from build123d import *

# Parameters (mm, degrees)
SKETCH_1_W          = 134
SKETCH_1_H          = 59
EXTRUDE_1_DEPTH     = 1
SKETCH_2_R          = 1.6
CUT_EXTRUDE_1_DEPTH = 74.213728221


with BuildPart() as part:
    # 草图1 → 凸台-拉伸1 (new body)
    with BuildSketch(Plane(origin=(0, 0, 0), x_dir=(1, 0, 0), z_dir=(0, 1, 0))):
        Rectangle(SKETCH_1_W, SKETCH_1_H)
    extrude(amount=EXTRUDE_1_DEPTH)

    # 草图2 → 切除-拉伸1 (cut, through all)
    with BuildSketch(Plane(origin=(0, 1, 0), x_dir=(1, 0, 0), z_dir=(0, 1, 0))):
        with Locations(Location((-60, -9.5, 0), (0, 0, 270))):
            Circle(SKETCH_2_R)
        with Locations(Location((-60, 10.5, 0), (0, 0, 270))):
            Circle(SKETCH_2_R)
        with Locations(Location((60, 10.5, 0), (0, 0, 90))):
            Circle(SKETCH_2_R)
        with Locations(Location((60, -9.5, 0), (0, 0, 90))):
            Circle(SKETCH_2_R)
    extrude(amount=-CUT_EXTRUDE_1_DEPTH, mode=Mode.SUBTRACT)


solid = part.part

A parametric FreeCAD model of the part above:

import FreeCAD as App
import Part
import Sketcher
Q = App.Units.Quantity


def add_polygon(sketch, points):
    """Adds a closed chain of lines whose ends are joined by coincident constraints."""
    first, n = sketch.GeometryCount, len(points)
    for a, b in zip(points, points[1:] + points[:1]):
        sketch.addGeometry(Part.LineSegment(App.Vector(*a, 0), App.Vector(*b, 0)), False)
    for i in range(n):
        sketch.addConstraint(Sketcher.Constraint("Coincident", first + i, 2, first + (i + 1) % n, 1))

doc = App.newDocument("Part")
body = doc.addObject("PartDesign::Body", "Body")

sketch1 = body.newObject("Sketcher::SketchObject", "Sketch")
sketch1.AttachmentSupport = (doc.getObject("XZ_Plane"), [""])
sketch1.MapMode = "FlatFace"
add_polygon(sketch1, [(-67, -29.5), (-67, 29.5), (67, 29.5), (67, -29.5)])
sketch1.addConstraint([
    Sketcher.Constraint("Vertical", 0),
    Sketcher.Constraint("Horizontal", 1),
    Sketcher.Constraint("Vertical", 2),
    Sketcher.Constraint("Horizontal", 3),
    Sketcher.Constraint("Symmetric", 0, 2, 2, 2, -1, 1),
    Sketcher.Constraint("DistanceX", 1, 1, 1, 2, Q("134 mm")),
    Sketcher.Constraint("DistanceY", 0, 1, 0, 2, Q("59 mm")),
])
pad1 = body.newObject("PartDesign::Pad", "Pad")
pad1.Profile = sketch1
pad1.Length = 1
pad1.Reversed = True

sketch2 = body.newObject("Sketcher::SketchObject", "Sketch001")
sketch2.AttachmentSupport = (doc.getObject("XZ_Plane"), [""])
sketch2.MapMode = "FlatFace"
sketch2.AttachmentOffset = App.Placement(App.Vector(0, 0, -1), App.Rotation())
sketch2.addGeometry([
    Part.Circle(App.Vector(-60, 9.5, 0), App.Vector(0, 0, 1), 1.6),
    Part.Circle(App.Vector(-60, -10.5, 0), App.Vector(0, 0, 1), 1.6),
    Part.Circle(App.Vector(60, -10.5, 0), App.Vector(0, 0, 1), 1.6),
    Part.Circle(App.Vector(60, 9.5, 0), App.Vector(0, 0, 1), 1.6),
], False)
sketch2.addConstraint([
    Sketcher.Constraint("Equal", 0, 1),
    Sketcher.Constraint("Equal", 1, 2),
    Sketcher.Constraint("Equal", 2, 3),
    Sketcher.Constraint("Symmetric", 1, 3, 2, 3, -2),
    Sketcher.Constraint("Symmetric", 0, 3, 3, 3, -2),
    Sketcher.Constraint("Vertical", 0, 3, 1, 3),
    Sketcher.Constraint("Diameter", 0, Q("3.2 mm")),
    Sketcher.Constraint("DistanceX", 0, 3, -1, 1, Q("60 mm")),
    Sketcher.Constraint("DistanceY", 1, 3, 0, 3, Q("20 mm")),
    Sketcher.Constraint("DistanceY", -1, 1, 0, 3, Q("9.5 mm")),
])
pocket1 = body.newObject("PartDesign::Pocket", "Pocket")
pocket1.Profile = sketch2
pocket1.Type = "ThroughAll"
pocket1.Reversed = True

doc.recompute()
